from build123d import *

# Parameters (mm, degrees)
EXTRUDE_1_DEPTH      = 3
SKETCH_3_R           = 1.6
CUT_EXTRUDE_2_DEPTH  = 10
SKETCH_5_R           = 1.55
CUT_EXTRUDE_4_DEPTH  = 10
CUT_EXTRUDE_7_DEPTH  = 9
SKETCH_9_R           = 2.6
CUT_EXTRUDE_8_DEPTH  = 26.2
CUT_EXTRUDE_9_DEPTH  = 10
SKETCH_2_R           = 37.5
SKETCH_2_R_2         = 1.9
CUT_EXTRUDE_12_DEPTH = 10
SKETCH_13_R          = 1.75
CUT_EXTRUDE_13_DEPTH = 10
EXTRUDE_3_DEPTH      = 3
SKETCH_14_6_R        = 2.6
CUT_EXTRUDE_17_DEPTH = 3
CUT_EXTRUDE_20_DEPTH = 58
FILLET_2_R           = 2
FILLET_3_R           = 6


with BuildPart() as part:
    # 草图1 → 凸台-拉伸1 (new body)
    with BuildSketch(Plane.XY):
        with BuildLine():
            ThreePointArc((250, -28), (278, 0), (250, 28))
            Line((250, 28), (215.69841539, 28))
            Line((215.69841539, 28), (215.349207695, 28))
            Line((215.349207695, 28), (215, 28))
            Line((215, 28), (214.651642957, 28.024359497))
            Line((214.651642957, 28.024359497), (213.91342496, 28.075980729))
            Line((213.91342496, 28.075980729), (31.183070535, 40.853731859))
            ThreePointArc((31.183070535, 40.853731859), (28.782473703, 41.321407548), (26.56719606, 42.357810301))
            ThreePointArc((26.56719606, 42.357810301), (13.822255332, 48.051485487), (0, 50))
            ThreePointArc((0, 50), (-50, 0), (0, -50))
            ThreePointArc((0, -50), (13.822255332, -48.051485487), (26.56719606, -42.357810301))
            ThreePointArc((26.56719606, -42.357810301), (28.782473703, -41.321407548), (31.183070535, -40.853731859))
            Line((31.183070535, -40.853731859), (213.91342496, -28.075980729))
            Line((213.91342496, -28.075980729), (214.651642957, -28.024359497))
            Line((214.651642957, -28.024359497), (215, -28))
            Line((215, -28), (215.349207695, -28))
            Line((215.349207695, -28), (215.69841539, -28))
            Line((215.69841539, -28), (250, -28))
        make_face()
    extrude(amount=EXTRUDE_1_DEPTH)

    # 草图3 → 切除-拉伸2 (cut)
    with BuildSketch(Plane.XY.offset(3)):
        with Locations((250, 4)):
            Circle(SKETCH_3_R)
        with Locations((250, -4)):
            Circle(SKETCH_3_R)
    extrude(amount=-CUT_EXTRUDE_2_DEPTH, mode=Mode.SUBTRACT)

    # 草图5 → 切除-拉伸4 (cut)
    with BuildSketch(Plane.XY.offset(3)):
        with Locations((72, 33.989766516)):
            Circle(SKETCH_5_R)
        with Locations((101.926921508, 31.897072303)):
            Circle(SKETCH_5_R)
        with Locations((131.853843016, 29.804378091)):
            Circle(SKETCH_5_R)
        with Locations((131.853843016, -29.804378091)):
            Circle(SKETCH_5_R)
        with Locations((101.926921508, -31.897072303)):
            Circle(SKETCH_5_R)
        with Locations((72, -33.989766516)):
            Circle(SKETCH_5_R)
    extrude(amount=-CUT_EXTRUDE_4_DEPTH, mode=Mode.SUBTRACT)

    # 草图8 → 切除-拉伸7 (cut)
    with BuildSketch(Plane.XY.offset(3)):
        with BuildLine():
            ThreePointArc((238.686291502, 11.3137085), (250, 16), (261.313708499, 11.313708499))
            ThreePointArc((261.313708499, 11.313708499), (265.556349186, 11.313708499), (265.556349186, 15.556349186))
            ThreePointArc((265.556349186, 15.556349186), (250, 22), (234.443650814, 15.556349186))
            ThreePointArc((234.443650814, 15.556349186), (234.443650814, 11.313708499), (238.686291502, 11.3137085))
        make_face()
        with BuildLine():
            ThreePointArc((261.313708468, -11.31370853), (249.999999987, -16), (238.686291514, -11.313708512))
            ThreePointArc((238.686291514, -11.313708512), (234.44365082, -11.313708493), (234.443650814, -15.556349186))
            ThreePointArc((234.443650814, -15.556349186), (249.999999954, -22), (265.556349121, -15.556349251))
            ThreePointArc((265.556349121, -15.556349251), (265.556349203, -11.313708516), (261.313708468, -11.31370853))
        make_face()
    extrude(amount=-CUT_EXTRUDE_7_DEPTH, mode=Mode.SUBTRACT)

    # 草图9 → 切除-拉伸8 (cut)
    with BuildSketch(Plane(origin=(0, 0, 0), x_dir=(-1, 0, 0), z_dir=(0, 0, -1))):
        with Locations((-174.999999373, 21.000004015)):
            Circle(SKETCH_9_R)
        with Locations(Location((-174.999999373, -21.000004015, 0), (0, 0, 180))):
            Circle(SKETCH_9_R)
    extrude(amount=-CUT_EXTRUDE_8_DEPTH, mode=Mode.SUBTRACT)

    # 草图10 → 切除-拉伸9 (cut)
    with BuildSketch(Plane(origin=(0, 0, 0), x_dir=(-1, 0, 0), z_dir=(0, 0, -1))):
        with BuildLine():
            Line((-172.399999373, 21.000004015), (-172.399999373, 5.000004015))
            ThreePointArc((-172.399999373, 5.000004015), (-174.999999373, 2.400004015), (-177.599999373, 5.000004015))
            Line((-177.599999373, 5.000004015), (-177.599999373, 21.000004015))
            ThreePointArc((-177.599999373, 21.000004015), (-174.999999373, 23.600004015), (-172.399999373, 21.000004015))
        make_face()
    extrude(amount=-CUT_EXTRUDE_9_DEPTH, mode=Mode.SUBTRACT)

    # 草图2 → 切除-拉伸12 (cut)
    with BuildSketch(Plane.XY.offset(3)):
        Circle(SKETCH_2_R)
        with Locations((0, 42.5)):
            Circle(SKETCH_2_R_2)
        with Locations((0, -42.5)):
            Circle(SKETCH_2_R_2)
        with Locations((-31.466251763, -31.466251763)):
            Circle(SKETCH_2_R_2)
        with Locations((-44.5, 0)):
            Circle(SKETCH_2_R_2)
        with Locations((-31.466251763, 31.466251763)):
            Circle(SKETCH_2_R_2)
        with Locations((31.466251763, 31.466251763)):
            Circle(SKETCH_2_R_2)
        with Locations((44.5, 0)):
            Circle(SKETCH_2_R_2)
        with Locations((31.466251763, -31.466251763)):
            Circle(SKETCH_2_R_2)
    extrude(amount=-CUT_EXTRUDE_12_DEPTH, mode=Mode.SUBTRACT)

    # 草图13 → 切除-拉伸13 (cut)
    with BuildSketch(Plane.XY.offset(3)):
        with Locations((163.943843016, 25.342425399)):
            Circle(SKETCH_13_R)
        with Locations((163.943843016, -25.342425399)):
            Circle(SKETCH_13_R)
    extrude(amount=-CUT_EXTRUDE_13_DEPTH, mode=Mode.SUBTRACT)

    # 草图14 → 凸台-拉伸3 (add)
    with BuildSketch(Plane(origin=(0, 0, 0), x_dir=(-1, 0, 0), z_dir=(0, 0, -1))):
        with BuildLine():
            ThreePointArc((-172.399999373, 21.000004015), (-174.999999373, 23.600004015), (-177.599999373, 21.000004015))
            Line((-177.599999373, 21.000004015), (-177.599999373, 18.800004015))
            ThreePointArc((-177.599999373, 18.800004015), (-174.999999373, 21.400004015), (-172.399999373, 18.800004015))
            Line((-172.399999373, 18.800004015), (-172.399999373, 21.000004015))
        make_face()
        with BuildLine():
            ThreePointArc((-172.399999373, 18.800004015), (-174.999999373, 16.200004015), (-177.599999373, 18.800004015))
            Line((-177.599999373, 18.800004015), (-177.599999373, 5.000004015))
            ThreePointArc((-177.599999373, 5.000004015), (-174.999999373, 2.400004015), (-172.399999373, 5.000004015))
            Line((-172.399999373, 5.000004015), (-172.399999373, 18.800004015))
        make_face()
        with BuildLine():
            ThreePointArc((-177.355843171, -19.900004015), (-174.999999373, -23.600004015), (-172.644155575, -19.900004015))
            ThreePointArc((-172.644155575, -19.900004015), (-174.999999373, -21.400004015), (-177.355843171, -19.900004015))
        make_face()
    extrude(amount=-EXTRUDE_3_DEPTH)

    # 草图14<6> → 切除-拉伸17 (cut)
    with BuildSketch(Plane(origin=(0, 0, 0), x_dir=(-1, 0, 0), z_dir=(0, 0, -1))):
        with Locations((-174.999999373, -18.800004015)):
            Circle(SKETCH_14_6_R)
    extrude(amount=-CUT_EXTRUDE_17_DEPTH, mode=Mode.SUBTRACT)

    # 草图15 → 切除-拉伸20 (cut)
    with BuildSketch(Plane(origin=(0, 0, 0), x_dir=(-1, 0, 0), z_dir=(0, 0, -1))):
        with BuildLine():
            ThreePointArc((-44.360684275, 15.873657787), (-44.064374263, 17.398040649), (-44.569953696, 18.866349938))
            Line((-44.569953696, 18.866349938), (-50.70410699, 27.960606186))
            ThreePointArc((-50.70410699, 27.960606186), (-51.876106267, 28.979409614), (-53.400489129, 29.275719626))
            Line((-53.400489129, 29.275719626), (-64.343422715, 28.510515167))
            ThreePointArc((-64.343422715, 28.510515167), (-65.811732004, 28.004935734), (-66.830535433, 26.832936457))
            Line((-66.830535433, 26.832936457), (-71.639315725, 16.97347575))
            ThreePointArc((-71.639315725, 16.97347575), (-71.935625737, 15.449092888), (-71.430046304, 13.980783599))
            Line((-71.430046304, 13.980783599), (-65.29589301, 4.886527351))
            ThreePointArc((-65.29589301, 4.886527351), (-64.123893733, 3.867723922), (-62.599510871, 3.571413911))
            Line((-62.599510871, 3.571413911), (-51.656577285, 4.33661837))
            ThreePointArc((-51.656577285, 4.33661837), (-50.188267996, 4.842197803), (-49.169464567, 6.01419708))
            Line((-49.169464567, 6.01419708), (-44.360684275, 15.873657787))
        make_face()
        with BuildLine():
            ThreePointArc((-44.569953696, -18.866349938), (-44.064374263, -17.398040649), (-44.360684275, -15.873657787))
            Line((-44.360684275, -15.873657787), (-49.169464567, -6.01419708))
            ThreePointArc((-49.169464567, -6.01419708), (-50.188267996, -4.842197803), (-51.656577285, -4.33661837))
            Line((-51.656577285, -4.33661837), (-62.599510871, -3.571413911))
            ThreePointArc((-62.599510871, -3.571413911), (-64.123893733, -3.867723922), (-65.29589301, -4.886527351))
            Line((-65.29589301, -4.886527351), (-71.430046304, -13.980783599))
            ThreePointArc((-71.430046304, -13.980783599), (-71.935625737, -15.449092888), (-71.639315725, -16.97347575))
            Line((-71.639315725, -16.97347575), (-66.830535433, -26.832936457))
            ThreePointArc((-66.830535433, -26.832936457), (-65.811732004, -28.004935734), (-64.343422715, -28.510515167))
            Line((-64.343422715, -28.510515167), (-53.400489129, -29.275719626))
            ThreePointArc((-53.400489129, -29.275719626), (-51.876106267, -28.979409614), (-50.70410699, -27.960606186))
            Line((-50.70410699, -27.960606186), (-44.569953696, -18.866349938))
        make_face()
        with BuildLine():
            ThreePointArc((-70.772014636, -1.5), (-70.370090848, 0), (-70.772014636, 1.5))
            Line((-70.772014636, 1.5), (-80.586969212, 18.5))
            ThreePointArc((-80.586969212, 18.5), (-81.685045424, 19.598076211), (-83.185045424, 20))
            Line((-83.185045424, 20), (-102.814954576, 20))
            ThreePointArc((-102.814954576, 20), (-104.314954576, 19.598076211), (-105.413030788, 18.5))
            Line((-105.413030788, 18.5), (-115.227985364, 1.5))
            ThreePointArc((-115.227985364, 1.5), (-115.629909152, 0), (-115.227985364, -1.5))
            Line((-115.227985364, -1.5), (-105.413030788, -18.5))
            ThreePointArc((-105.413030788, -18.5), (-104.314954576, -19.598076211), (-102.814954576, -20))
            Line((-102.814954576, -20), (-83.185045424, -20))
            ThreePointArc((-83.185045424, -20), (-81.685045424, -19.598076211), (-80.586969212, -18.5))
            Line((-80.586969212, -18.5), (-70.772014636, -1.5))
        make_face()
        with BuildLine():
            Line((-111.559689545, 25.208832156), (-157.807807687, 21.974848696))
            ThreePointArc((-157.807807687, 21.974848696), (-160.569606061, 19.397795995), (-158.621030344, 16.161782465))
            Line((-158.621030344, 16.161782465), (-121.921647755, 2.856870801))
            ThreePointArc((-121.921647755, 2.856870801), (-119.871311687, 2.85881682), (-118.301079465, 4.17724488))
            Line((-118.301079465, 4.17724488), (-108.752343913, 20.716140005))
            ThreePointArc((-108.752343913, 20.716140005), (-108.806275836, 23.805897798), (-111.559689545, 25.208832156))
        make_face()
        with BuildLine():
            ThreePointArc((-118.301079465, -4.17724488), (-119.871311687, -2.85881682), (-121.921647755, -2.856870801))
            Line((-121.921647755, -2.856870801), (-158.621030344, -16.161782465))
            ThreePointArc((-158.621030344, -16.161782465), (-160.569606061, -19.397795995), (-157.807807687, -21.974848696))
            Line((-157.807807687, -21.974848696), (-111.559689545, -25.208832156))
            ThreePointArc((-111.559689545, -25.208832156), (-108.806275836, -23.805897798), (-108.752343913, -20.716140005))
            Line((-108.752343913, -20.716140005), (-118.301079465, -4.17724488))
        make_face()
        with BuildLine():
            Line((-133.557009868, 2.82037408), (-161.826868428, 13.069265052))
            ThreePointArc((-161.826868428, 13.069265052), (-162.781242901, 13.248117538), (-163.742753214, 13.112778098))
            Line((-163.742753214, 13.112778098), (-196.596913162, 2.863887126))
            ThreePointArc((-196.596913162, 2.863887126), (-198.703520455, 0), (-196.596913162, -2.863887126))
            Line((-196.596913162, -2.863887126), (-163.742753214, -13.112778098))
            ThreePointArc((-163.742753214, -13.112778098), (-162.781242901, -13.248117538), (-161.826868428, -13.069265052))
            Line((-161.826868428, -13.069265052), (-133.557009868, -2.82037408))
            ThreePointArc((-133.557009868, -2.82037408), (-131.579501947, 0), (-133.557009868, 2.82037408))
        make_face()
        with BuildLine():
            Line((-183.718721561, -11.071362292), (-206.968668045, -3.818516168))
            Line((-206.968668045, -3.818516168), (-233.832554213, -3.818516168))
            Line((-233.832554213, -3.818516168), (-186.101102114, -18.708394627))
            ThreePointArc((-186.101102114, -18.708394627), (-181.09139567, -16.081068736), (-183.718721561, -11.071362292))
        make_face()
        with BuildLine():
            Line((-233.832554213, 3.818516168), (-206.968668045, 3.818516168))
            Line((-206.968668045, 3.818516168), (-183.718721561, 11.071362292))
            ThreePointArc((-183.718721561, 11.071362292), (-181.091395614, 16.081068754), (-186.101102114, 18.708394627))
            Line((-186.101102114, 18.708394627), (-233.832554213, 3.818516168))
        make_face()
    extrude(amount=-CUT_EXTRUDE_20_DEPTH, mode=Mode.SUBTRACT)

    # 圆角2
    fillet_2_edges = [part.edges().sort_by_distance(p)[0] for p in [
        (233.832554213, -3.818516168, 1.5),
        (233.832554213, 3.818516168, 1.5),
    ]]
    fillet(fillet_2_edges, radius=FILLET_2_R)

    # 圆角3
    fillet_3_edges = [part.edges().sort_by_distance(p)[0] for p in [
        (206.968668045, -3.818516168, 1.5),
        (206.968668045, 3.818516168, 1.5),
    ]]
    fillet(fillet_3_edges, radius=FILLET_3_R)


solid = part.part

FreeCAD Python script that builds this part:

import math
import FreeCAD as App
import Part
import Sketcher

V = App.Vector
Q = App.Units.Quantity


def edges_at(feature, points):
    """Names of the edges that pass closest to the given points."""
    edges = feature.Shape.Edges
    near = lambda p: min(range(len(edges)), key=lambda i: edges[i].distToShape(Part.Vertex(*p))[0])
    return sorted({f"Edge{near(p) + 1}" for p in points})

doc = App.newDocument("Part")
body = doc.addObject("PartDesign::Body", "Body")

sketch1 = body.newObject("Sketcher::SketchObject", "Sketch")
sketch1.AttachmentSupport = (doc.getObject("XY_Plane"), [""])
sketch1.MapMode = "FlatFace"
sketch1.addGeometry(Part.ArcOfCircle(Part.Circle(V(250, 0, 0), V(0, 0, 1), 28), math.radians(-90), math.radians(90)), False)
sketch1.addGeometry(Part.LineSegment(V(250, 28, 0), V(215, 28, 0)), False)
sketch1.addGeometry(Part.LineSegment(V(215, 28, 0), V(214.65, 28.02, 0)), False)
sketch1.addGeometry(Part.LineSegment(V(214.65, 28.02, 0), V(213.91, 28.08, 0)), False)
sketch1.addGeometry(Part.LineSegment(V(213.91, 28.08, 0), V(31.18, 40.85, 0)), False)
sketch1.addGeometry(Part.ArcOfCircle(Part.Circle(V(31.88, 50.83, 0), V(0, 0, 1), 10), math.radians(-122), math.radians(-94)), False)
sketch1.addGeometry(Part.ArcOfCircle(Part.Circle(V(0, 0, 0), V(0, 0, 1), 50), math.radians(58), math.radians(90)), False)
sketch1.addGeometry(Part.ArcOfCircle(Part.Circle(V(0, 0, 0), V(0, 0, 1), 50), math.radians(90), math.radians(270)), False)
sketch1.addGeometry(Part.ArcOfCircle(Part.Circle(V(0, 0, 0), V(0, 0, 1), 50), math.radians(-90), math.radians(-58)), False)
sketch1.addGeometry(Part.ArcOfCircle(Part.Circle(V(31.88, -50.83, 0), V(0, 0, 1), 10), math.radians(94), math.radians(122)), False)
sketch1.addGeometry(Part.LineSegment(V(31.18, -40.85, 0), V(213.91, -28.08, 0)), False)
sketch1.addGeometry(Part.LineSegment(V(213.91, -28.08, 0), V(214.65, -28.02, 0)), False)
sketch1.addGeometry(Part.LineSegment(V(214.65, -28.02, 0), V(215, -28, 0)), False)
sketch1.addGeometry(Part.LineSegment(V(215, -28, 0), V(250, -28, 0)), False)
sketch1.addConstraint(Sketcher.Constraint("Tangent", 0, 2, 1, 1))
sketch1.addConstraint(Sketcher.Constraint("Coincident", 1, 2, 2, 1))
sketch1.addConstraint(Sketcher.Constraint("Coincident", 2, 2, 3, 1))
sketch1.addConstraint(Sketcher.Constraint("Coincident", 3, 2, 4, 1))
sketch1.addConstraint(Sketcher.Constraint("Tangent", 4, 2, 5, 2))
sketch1.addConstraint(Sketcher.Constraint("Tangent", 5, 1, 6, 1))
sketch1.addConstraint(Sketcher.Constraint("Tangent", 6, 2, 7, 1))
sketch1.addConstraint(Sketcher.Constraint("Tangent", 7, 2, 8, 1))
sketch1.addConstraint(Sketcher.Constraint("Tangent", 8, 2, 9, 2))
sketch1.addConstraint(Sketcher.Constraint("Tangent", 9, 1, 10, 1))
sketch1.addConstraint(Sketcher.Constraint("Coincident", 10, 2, 11, 1))
sketch1.addConstraint(Sketcher.Constraint("Coincident", 11, 2, 12, 1))
sketch1.addConstraint(Sketcher.Constraint("Coincident", 12, 2, 13, 1))
sketch1.addConstraint(Sketcher.Constraint("Tangent", 13, 2, 0, 1))
sketch1.addConstraint(Sketcher.Constraint("Horizontal", 1))
sketch1.addConstraint(Sketcher.Constraint("Horizontal", 13))
sketch1.addConstraint(Sketcher.Constraint("Coincident", 6, 3, -1, 1))
sketch1.addConstraint(Sketcher.Constraint("Equal", 6, 7))
sketch1.addConstraint(Sketcher.Constraint("Equal", 7, 8))
sketch1.addConstraint(Sketcher.Constraint("Equal", 5, 9))
sketch1.addConstraint(Sketcher.Constraint("Symmetric", 4, 2, 9, 1, -1))
sketch1.addConstraint(Sketcher.Constraint("Symmetric", 2, 2, 11, 2, -1))
sketch1.addConstraint(Sketcher.Constraint("Symmetric", 1, 2, 12, 2, -1))
sketch1.addConstraint(Sketcher.Constraint("PointOnObject", 6, 2, -2))
sketch1.addConstraint(Sketcher.Constraint("PointOnObject", 7, 2, -2))
sketch1.addConstraint(Sketcher.Constraint("Parallel", 2, 3))
sketch1.addConstraint(Sketcher.Constraint("Parallel", 3, 4))
sketch1.addConstraint(Sketcher.Constraint("Vertical", 3, 2, 10, 2))
sketch1.addConstraint(Sketcher.Constraint("Radius", 0, 28.0))
sketch1.addConstraint(Sketcher.Constraint("Radius", 5, 10.0))
sketch1.addConstraint(Sketcher.Constraint("Radius", 6, 50.0))
sketch1.addConstraint(Sketcher.Constraint("DistanceX", 1, 2, 1, 1, 35.0))
sketch1.addConstraint(Sketcher.Constraint("Angle", 4, Q("176 deg")))
sketch1.addConstraint(Sketcher.Constraint("DistanceX", -1, 1, 0, 3, 250.0))
sketch1.addConstraint(Sketcher.Constraint("Distance", 3, 0.740021))
sketch1.addConstraint(Sketcher.Constraint("DistanceY", -1, 1, 2, 2, 28.024359))
pad1 = body.newObject("PartDesign::Pad", "Pad")
pad1.Profile = sketch1
pad1.Length = 3

sketch2 = body.newObject("Sketcher::SketchObject", "Sketch001")
sketch2.AttachmentSupport = (doc.getObject("XY_Plane"), [""])
sketch2.MapMode = "FlatFace"
sketch2.AttachmentOffset = App.Placement(V(0, 0, 3), App.Rotation())
sketch2.addGeometry(Part.Circle(V(250, 4, 0), V(0, 0, 1), 1.6), False)
sketch2.addGeometry(Part.Circle(V(250, -4, 0), V(0, 0, 1), 1.6), False)
sketch2.addConstraint(Sketcher.Constraint("Equal", 0, 1))
sketch2.addConstraint(Sketcher.Constraint("Symmetric", 0, 3, 1, 3, -1))
sketch2.addConstraint(Sketcher.Constraint("Diameter", 0, 3.2))
sketch2.addConstraint(Sketcher.Constraint("DistanceX", -1, 1, 0, 3, 250.0))
sketch2.addConstraint(Sketcher.Constraint("DistanceY", -1, 1, 0, 3, 4.0))
pocket1 = body.newObject("PartDesign::Pocket", "Pocket")
pocket1.Profile = sketch2
pocket1.Length = 10

sketch3 = body.newObject("Sketcher::SketchObject", "Sketch002")
sketch3.AttachmentSupport = (doc.getObject("XY_Plane"), [""])
sketch3.MapMode = "FlatFace"
sketch3.AttachmentOffset = App.Placement(V(0, 0, 3), App.Rotation())
sketch3.addGeometry(Part.Circle(V(72, 34, 0), V(0, 0, 1), 1.6), False)
sketch3.addGeometry(Part.Circle(V(101.9, 31.9, 0), V(0, 0, 1), 1.6), False)
sketch3.addGeometry(Part.Circle(V(131.9, 29.8, 0), V(0, 0, 1), 1.6), False)
sketch3.addGeometry(Part.Circle(V(131.9, -29.8, 0), V(0, 0, 1), 1.6), False)
sketch3.addGeometry(Part.Circle(V(101.9, -31.9, 0), V(0, 0, 1), 1.6), False)
sketch3.addGeometry(Part.Circle(V(72, -34, 0), V(0, 0, 1), 1.6), False)
sketch3.addConstraint(Sketcher.Constraint("Equal", 0, 1))
sketch3.addConstraint(Sketcher.Constraint("Equal", 1, 2))
sketch3.addConstraint(Sketcher.Constraint("Equal", 2, 3))
sketch3.addConstraint(Sketcher.Constraint("Equal", 3, 4))
sketch3.addConstraint(Sketcher.Constraint("Equal", 4, 5))
sketch3.addConstraint(Sketcher.Constraint("Symmetric", 2, 3, 3, 3, -1))
sketch3.addConstraint(Sketcher.Constraint("Symmetric", 1, 3, 4, 3, -1))
sketch3.addConstraint(Sketcher.Constraint("Symmetric", 0, 3, 5, 3, -1))
sketch3.addConstraint(Sketcher.Constraint("Diameter", 0, 3.1))
sketch3.addConstraint(Sketcher.Constraint("DistanceX", -1, 1, 0, 3, 72.0))
sketch3.addConstraint(Sketcher.Constraint("DistanceX", -1, 1, 1, 3, 101.926922))
sketch3.addConstraint(Sketcher.Constraint("DistanceY", -1, 1, 2, 3, 29.804378))
sketch3.addConstraint(Sketcher.Constraint("DistanceX", 1, 3, 2, 3, 29.926922))
sketch3.addConstraint(Sketcher.Constraint("DistanceY", 2, 3, 0, 3, 4.185388))
sketch3.addConstraint(Sketcher.Constraint("DistanceY", 3, 3, 1, 3, 61.70145))
pocket2 = body.newObject("PartDesign::Pocket", "Pocket001")
pocket2.Profile = sketch3
pocket2.Length = 10

sketch4 = body.newObject("Sketcher::SketchObject", "Sketch003")
sketch4.AttachmentSupport = (doc.getObject("XY_Plane"), [""])
sketch4.MapMode = "FlatFace"
sketch4.AttachmentOffset = App.Placement(V(0, 0, 3), App.Rotation())
sketch4.addGeometry(Part.ArcOfCircle(Part.Circle(V(250, 0, 0), V(0, 0, 1), 16), math.radians(45), math.radians(135)), False)
sketch4.addGeometry(Part.ArcOfCircle(Part.Circle(V(263.4, 13.4, 0), V(0, 0, 1), 3), math.radians(-135), math.radians(45)), False)
sketch4.addGeometry(Part.ArcOfCircle(Part.Circle(V(250, 0, 0), V(0, 0, 1), 22), math.radians(45), math.radians(135)), False)
sketch4.addGeometry(Part.ArcOfCircle(Part.Circle(V(236.6, 13.4, 0), V(0, 0, 1), 3), math.radians(135), math.radians(315)), False)
sketch4.addGeometry(Part.ArcOfCircle(Part.Circle(V(250, 0, 0), V(0, 0, 1), 16), math.radians(-135), math.radians(-45)), False)
sketch4.addGeometry(Part.ArcOfCircle(Part.Circle(V(236.6, -13.4, 0), V(0, 0, 1), 3), math.radians(45), math.radians(225)), False)
sketch4.addGeometry(Part.ArcOfCircle(Part.Circle(V(250, 0, 0), V(0, 0, 1), 22), math.radians(-135), math.radians(-45)), False)
sketch4.addGeometry(Part.ArcOfCircle(Part.Circle(V(263.4, -13.4, 0), V(0, 0, 1), 3), math.radians(-45), math.radians(135)), False)
sketch4.addConstraint(Sketcher.Constraint("Tangent", 0, 1, 1, 1))
sketch4.addConstraint(Sketcher.Constraint("Tangent", 1, 2, 2, 1))
sketch4.addConstraint(Sketcher.Constraint("Tangent", 2, 2, 3, 1))
sketch4.addConstraint(Sketcher.Constraint("Tangent", 3, 2, 0, 2))
sketch4.addConstraint(Sketcher.Constraint("Tangent", 4, 1, 5, 1))
sketch4.addConstraint(Sketcher.Constraint("Tangent", 5, 2, 6, 1))
sketch4.addConstraint(Sketcher.Constraint("Tangent", 6, 2, 7, 1))
sketch4.addConstraint(Sketcher.Constraint("Tangent", 7, 2, 4, 2))
sketch4.addConstraint(Sketcher.Constraint("Coincident", 2, 3, 0, 3))
sketch4.addConstraint(Sketcher.Constraint("Coincident", 4, 3, 0, 3))
sketch4.addConstraint(Sketcher.Constraint("Coincident", 6, 3, 0, 3))
sketch4.addConstraint(Sketcher.Constraint("Equal", 0, 4))
sketch4.addConstraint(Sketcher.Constraint("Equal", 3, 5))
sketch4.addConstraint(Sketcher.Constraint("Symmetric", 3, 3, 5, 3, -1))
sketch4.addConstraint(Sketcher.Constraint("Horizontal", 1, 3, 3, 3))
sketch4.addConstraint(Sketcher.Constraint("Horizontal", 5, 3, 7, 3))
sketch4.addConstraint(Sketcher.Constraint("Radius", 0, 16.0))
sketch4.addConstraint(Sketcher.Constraint("Radius", 1, 3.0))
sketch4.addConstraint(Sketcher.Constraint("DistanceX", -1, 1, 0, 3, 250.0))
sketch4.addConstraint(Sketcher.Constraint("DistanceX", -1, 1, 1, 3, 263.435029))
pocket3 = body.newObject("PartDesign::Pocket", "Pocket002")
pocket3.Profile = sketch4
pocket3.Length = 9

sketch5 = body.newObject("Sketcher::SketchObject", "Sketch004")
sketch5.AttachmentSupport = (doc.getObject("XY_Plane"), [""])
sketch5.MapMode = "FlatFace"
sketch5.addGeometry(Part.Circle(V(175, 21, 0), V(0, 0, 1), 2.6), False)
sketch5.addGeometry(Part.Circle(V(175, -21, 0), V(0, 0, 1), 2.6), False)
sketch5.addConstraint(Sketcher.Constraint("Equal", 0, 1))
sketch5.addConstraint(Sketcher.Constraint("Symmetric", 0, 3, 1, 3, -1))
sketch5.addConstraint(Sketcher.Constraint("Diameter", 0, 5.2))
sketch5.addConstraint(Sketcher.Constraint("DistanceX", -1, 1, 0, 3, 174.999999))
sketch5.addConstraint(Sketcher.Constraint("DistanceY", 1, 3, 0, 3, 42.000008))
pocket4 = body.newObject("PartDesign::Pocket", "Pocket003")
pocket4.Profile = sketch5
pocket4.Length = 26.2
pocket4.Reversed = True

sketch6 = body.newObject("Sketcher::SketchObject", "Sketch005")
sketch6.AttachmentSupport = (doc.getObject("XY_Plane"), [""])
sketch6.MapMode = "FlatFace"
sketch6.addGeometry(Part.LineSegment(V(172.4, 5, 0), V(172.4, 21, 0)), False)
sketch6.addGeometry(Part.ArcOfCircle(Part.Circle(V(175, 21, 0), V(0, 0, 1), 2.6), math.radians(0), math.radians(180)), False)
sketch6.addGeometry(Part.LineSegment(V(177.6, 21, 0), V(177.6, 5, 0)), False)
sketch6.addGeometry(Part.ArcOfCircle(Part.Circle(V(175, 5, 0), V(0, 0, 1), 2.6), math.radians(180), math.radians(360)), False)
sketch6.addConstraint(Sketcher.Constraint("Tangent", 0, 2, 1, 2))
sketch6.addConstraint(Sketcher.Constraint("Tangent", 1, 1, 2, 1))
sketch6.addConstraint(Sketcher.Constraint("Tangent", 2, 2, 3, 2))
sketch6.addConstraint(Sketcher.Constraint("Tangent", 3, 1, 0, 1))
sketch6.addConstraint(Sketcher.Constraint("Vertical", 0))
sketch6.addConstraint(Sketcher.Constraint("Vertical", 2))
sketch6.addConstraint(Sketcher.Constraint("Radius", 1, 2.6))
sketch6.addConstraint(Sketcher.Constraint("DistanceY", 0, 1, 0, 2, 16.0))
sketch6.addConstraint(Sketcher.Constraint("DistanceX", -1, 1, 1, 3, 174.999999))
sketch6.addConstraint(Sketcher.Constraint("DistanceY", -1, 1, 1, 3, 21.000004))
pocket5 = body.newObject("PartDesign::Pocket", "Pocket004")
pocket5.Profile = sketch6
pocket5.Length = 10
pocket5.Reversed = True

sketch7 = body.newObject("Sketcher::SketchObject", "Sketch006")
sketch7.AttachmentSupport = (doc.getObject("XY_Plane"), [""])
sketch7.MapMode = "FlatFace"
sketch7.AttachmentOffset = App.Placement(V(0, 0, 3), App.Rotation())
sketch7.addGeometry(Part.Circle(V(0, 0, 0), V(0, 0, 1), 37.5), False)
sketch7.addGeometry(Part.Circle(V(0, 42.5, 0), V(0, 0, 1), 1.9), False)
sketch7.addGeometry(Part.Circle(V(0, -42.5, 0), V(0, 0, 1), 1.9), False)
sketch7.addGeometry(Part.Circle(V(-31.5, -31.5, 0), V(0, 0, 1), 1.9), False)
sketch7.addGeometry(Part.Circle(V(-44.5, 0, 0), V(0, 0, 1), 1.9), False)
sketch7.addGeometry(Part.Circle(V(-31.5, 31.5, 0), V(0, 0, 1), 1.9), False)
sketch7.addGeometry(Part.Circle(V(31.5, 31.5, 0), V(0, 0, 1), 1.9), False)
sketch7.addGeometry(Part.Circle(V(44.5, 0, 0), V(0, 0, 1), 1.9), False)
sketch7.addGeometry(Part.Circle(V(31.5, -31.5, 0), V(0, 0, 1), 1.9), False)
sketch7.addConstraint(Sketcher.Constraint("Coincident", 0, 3, -1, 1))
sketch7.addConstraint(Sketcher.Constraint("Equal", 1, 2))
sketch7.addConstraint(Sketcher.Constraint("Equal", 2, 3))
sketch7.addConstraint(Sketcher.Constraint("Equal", 3, 4))
sketch7.addConstraint(Sketcher.Constraint("Equal", 4, 5))
sketch7.addConstraint(Sketcher.Constraint("Equal", 5, 6))
sketch7.addConstraint(Sketcher.Constraint("Equal", 6, 7))
sketch7.addConstraint(Sketcher.Constraint("Equal", 7, 8))
sketch7.addConstraint(Sketcher.Constraint("Symmetric", 1, 3, 2, 3, -1, 1))
sketch7.addConstraint(Sketcher.Constraint("Symmetric", 3, 3, 6, 3, -1, 1))
sketch7.addConstraint(Sketcher.Constraint("Symmetric", 4, 3, 7, 3, -1, 1))
sketch7.addConstraint(Sketcher.Constraint("Symmetric", 5, 3, 8, 3, -1, 1))
sketch7.addConstraint(Sketcher.Constraint("Symmetric", 5, 3, 6, 3, -2))
sketch7.addConstraint(Sketcher.Constraint("PointOnObject", 1, 3, -2))
sketch7.addConstraint(Sketcher.Constraint("PointOnObject", 4, 3, -1))
sketch7.addConstraint(Sketcher.Constraint("Diameter", 0, 75.0))
sketch7.addConstraint(Sketcher.Constraint("Diameter", 1, 3.8))
sketch7.addConstraint(Sketcher.Constraint("DistanceY", 2, 3, 1, 3, 85.0))
sketch7.addConstraint(Sketcher.Constraint("DistanceX", 4, 3, -1, 1, 44.5))
sketch7.addConstraint(Sketcher.Constraint("DistanceX", 3, 3, -1, 1, 31.466252))
sketch7.addConstraint(Sketcher.Constraint("DistanceY", 3, 3, -1, 1, 31.466252))
pocket6 = body.newObject("PartDesign::Pocket", "Pocket005")
pocket6.Profile = sketch7
pocket6.Length = 10

sketch8 = body.newObject("Sketcher::SketchObject", "Sketch007")
sketch8.AttachmentSupport = (doc.getObject("XY_Plane"), [""])
sketch8.MapMode = "FlatFace"
sketch8.AttachmentOffset = App.Placement(V(0, 0, 3), App.Rotation())
sketch8.addGeometry(Part.Circle(V(163.9, 25.3, 0), V(0, 0, 1), 1.8), False)
sketch8.addGeometry(Part.Circle(V(163.9, -25.3, 0), V(0, 0, 1), 1.8), False)
sketch8.addConstraint(Sketcher.Constraint("Equal", 0, 1))
sketch8.addConstraint(Sketcher.Constraint("Symmetric", 0, 3, 1, 3, -1))
sketch8.addConstraint(Sketcher.Constraint("Diameter", 0, 3.5))
sketch8.addConstraint(Sketcher.Constraint("DistanceY", 1, 3, 0, 3, 50.684851))
sketch8.addConstraint(Sketcher.Constraint("DistanceX", -1, 1, 0, 3, 163.943843))
pocket7 = body.newObject("PartDesign::Pocket", "Pocket006")
pocket7.Profile = sketch8
pocket7.Length = 10

sketch9 = body.newObject("Sketcher::SketchObject", "Sketch008")
sketch9.AttachmentSupport = (doc.getObject("XY_Plane"), [""])
sketch9.MapMode = "FlatFace"
sketch9.addGeometry(Part.ArcOfCircle(Part.Circle(V(175, 21, 0), V(0, 0, 1), 2.6), math.radians(0), math.radians(180)), False)
sketch9.addGeometry(Part.LineSegment(V(177.6, 21, 0), V(177.6, 18.8, 0)), False)
sketch9.addGeometry(Part.ArcOfCircle(Part.Circle(V(175, 18.8, 0), V(0, 0, 1), 2.6), math.radians(0), math.radians(180)), False)
sketch9.addGeometry(Part.LineSegment(V(172.4, 18.8, 0), V(172.4, 21, 0)), False)
sketch9.addGeometry(Part.ArcOfCircle(Part.Circle(V(175, 18.8, 0), V(0, 0, 1), 2.6), math.radians(180), math.radians(360)), False)
sketch9.addGeometry(Part.LineSegment(V(177.6, 18.8, 0), V(177.6, 5, 0)), False)
sketch9.addGeometry(Part.ArcOfCircle(Part.Circle(V(175, 5, 0), V(0, 0, 1), 2.6), math.radians(180), math.radians(360)), False)
sketch9.addGeometry(Part.LineSegment(V(172.4, 5, 0), V(172.4, 18.8, 0)), False)
sketch9.addGeometry(Part.ArcOfCircle(Part.Circle(V(175, -21, 0), V(0, 0, 1), 2.6), math.radians(155), math.radians(385)), False)
sketch9.addGeometry(Part.ArcOfCircle(Part.Circle(V(175, -18.8, 0), V(0, 0, 1), 2.6), math.radians(-155), math.radians(-25)), False)
sketch9.addConstraint(Sketcher.Constraint("Tangent", 0, 1, 1, 1))
sketch9.addConstraint(Sketcher.Constraint("Tangent", 1, 2, 2, 1))
sketch9.addConstraint(Sketcher.Constraint("Tangent", 2, 2, 3, 1))
sketch9.addConstraint(Sketcher.Constraint("Tangent", 3, 2, 0, 2))
sketch9.addConstraint(Sketcher.Constraint("Tangent", 4, 2, 5, 1))
sketch9.addConstraint(Sketcher.Constraint("Tangent", 5, 2, 6, 2))
sketch9.addConstraint(Sketcher.Constraint("Tangent", 6, 1, 7, 1))
sketch9.addConstraint(Sketcher.Constraint("Tangent", 7, 2, 4, 1))
sketch9.addConstraint(Sketcher.Constraint("Coincident", 8, 1, 9, 1))
sketch9.addConstraint(Sketcher.Constraint("Coincident", 9, 2, 8, 2))
sketch9.addConstraint(Sketcher.Constraint("Vertical", 1))
sketch9.addConstraint(Sketcher.Constraint("Vertical", 3))
sketch9.addConstraint(Sketcher.Constraint("Vertical", 5))
sketch9.addConstraint(Sketcher.Constraint("Vertical", 7))
sketch9.addConstraint(Sketcher.Constraint("Coincident", 4, 3, 2, 3))
sketch9.addConstraint(Sketcher.Constraint("Equal", 2, 4))
sketch9.addConstraint(Sketcher.Constraint("Equal", 6, 8))
sketch9.addConstraint(Sketcher.Constraint("Equal", 8, 9))
sketch9.addConstraint(Sketcher.Constraint("Symmetric", 0, 3, 8, 3, -1))
sketch9.addConstraint(Sketcher.Constraint("Symmetric", 2, 3, 9, 3, -1))
sketch9.addConstraint(Sketcher.Constraint("Radius", 0, 2.6))
sketch9.addConstraint(Sketcher.Constraint("DistanceY", 1, 2, 1, 1, 2.2))
sketch9.addConstraint(Sketcher.Constraint("DistanceY", 5, 2, 5, 1, 13.8))
sketch9.addConstraint(Sketcher.Constraint("DistanceX", -1, 1, 0, 3, 174.999999))
sketch9.addConstraint(Sketcher.Constraint("DistanceY", 8, 3, 6, 3, 26.000008))
pad2 = body.newObject("PartDesign::Pad", "Pad001")
pad2.Profile = sketch9
pad2.Length = 3

sketch10 = body.newObject("Sketcher::SketchObject", "Sketch009")
sketch10.AttachmentSupport = (doc.getObject("XY_Plane"), [""])
sketch10.MapMode = "FlatFace"
sketch10.addGeometry(Part.Circle(V(175, -18.8, 0), V(0, 0, 1), 2.6), False)
sketch10.addConstraint(Sketcher.Constraint("Diameter", 0, 5.2))
sketch10.addConstraint(Sketcher.Constraint("DistanceX", -1, 1, 0, 3, 174.999999))
sketch10.addConstraint(Sketcher.Constraint("DistanceY", 0, 3, -1, 1, 18.800004))
pocket8 = body.newObject("PartDesign::Pocket", "Pocket007")
pocket8.Profile = sketch10
pocket8.Length = 3
pocket8.Reversed = True

sketch11 = body.newObject("Sketcher::SketchObject", "Sketch010")
sketch11.AttachmentSupport = (doc.getObject("XY_Plane"), [""])
sketch11.MapMode = "FlatFace"
sketch11.addGeometry(Part.ArcOfCircle(Part.Circle(V(47.1, 17.2, 0), V(0, 0, 1), 3), math.radians(146), math.radians(206)), False)
sketch11.addGeometry(Part.LineSegment(V(44.6, 18.9, 0), V(50.7, 28, 0)), False)
sketch11.addGeometry(Part.ArcOfCircle(Part.Circle(V(53.2, 26.3, 0), V(0, 0, 1), 3), math.radians(86), math.radians(146)), False)
sketch11.addGeometry(Part.LineSegment(V(53.4, 29.3, 0), V(64.3, 28.5, 0)), False)
sketch11.addGeometry(Part.ArcOfCircle(Part.Circle(V(64.1, 25.5, 0), V(0, 0, 1), 3), math.radians(26), math.radians(86)), False)
sketch11.addGeometry(Part.LineSegment(V(66.8, 26.8, 0), V(71.6, 17, 0)), False)
sketch11.addGeometry(Part.ArcOfCircle(Part.Circle(V(68.9, 15.7, 0), V(0, 0, 1), 3), math.radians(-34), math.radians(26)), False)
sketch11.addGeometry(Part.LineSegment(V(71.4, 14, 0), V(65.3, 4.9, 0)), False)
sketch11.addGeometry(Part.ArcOfCircle(Part.Circle(V(62.8, 6.6, 0), V(0, 0, 1), 3), math.radians(-94), math.radians(-34)), False)
sketch11.addGeometry(Part.LineSegment(V(62.6, 3.6, 0), V(51.7, 4.3, 0)), False)
sketch11.addGeometry(Part.ArcOfCircle(Part.Circle(V(51.9, 7.3, 0), V(0, 0, 1), 3), math.radians(-154), math.radians(-94)), False)
sketch11.addGeometry(Part.LineSegment(V(49.2, 6, 0), V(44.4, 15.9, 0)), False)
sketch11.addGeometry(Part.ArcOfCircle(Part.Circle(V(47.1, -17.2, 0), V(0, 0, 1), 3), math.radians(154), math.radians(214)), False)
sketch11.addGeometry(Part.LineSegment(V(44.4, -15.9, 0), V(49.2, -6, 0)), False)
sketch11.addGeometry(Part.ArcOfCircle(Part.Circle(V(51.9, -7.3, 0), V(0, 0, 1), 3), math.radians(94), math.radians(154)), False)
sketch11.addGeometry(Part.LineSegment(V(51.7, -4.3, 0), V(62.6, -3.6, 0)), False)
sketch11.addGeometry(Part.ArcOfCircle(Part.Circle(V(62.8, -6.6, 0), V(0, 0, 1), 3), math.radians(34), math.radians(94)), False)
sketch11.addGeometry(Part.LineSegment(V(65.3, -4.9, 0), V(71.4, -14, 0)), False)
sketch11.addGeometry(Part.ArcOfCircle(Part.Circle(V(68.9, -15.7, 0), V(0, 0, 1), 3), math.radians(-26), math.radians(34)), False)
sketch11.addGeometry(Part.LineSegment(V(71.6, -17, 0), V(66.8, -26.8, 0)), False)
sketch11.addGeometry(Part.ArcOfCircle(Part.Circle(V(64.1, -25.5, 0), V(0, 0, 1), 3), math.radians(-86), math.radians(-26)), False)
sketch11.addGeometry(Part.LineSegment(V(64.3, -28.5, 0), V(53.4, -29.3, 0)), False)
sketch11.addGeometry(Part.ArcOfCircle(Part.Circle(V(53.2, -26.3, 0), V(0, 0, 1), 3), math.radians(-146), math.radians(-86)), False)
sketch11.addGeometry(Part.LineSegment(V(50.7, -28, 0), V(44.6, -18.9, 0)), False)
sketch11.addGeometry(Part.ArcOfCircle(Part.Circle(V(73.4, 0, 0), V(0, 0, 1), 3), math.radians(150), math.radians(210)), False)
sketch11.addGeometry(Part.LineSegment(V(70.8, 1.5, 0), V(80.6, 18.5, 0)), False)
sketch11.addGeometry(Part.ArcOfCircle(Part.Circle(V(83.2, 17, 0), V(0, 0, 1), 3), math.radians(90), math.radians(150)), False)
sketch11.addGeometry(Part.LineSegment(V(83.2, 20, 0), V(102.8, 20, 0)), False)
sketch11.addGeometry(Part.ArcOfCircle(Part.Circle(V(102.8, 17, 0), V(0, 0, 1), 3), math.radians(30), math.radians(90)), False)
sketch11.addGeometry(Part.LineSegment(V(105.4, 18.5, 0), V(115.2, 1.5, 0)), False)
sketch11.addGeometry(Part.ArcOfCircle(Part.Circle(V(112.6, 0, 0), V(0, 0, 1), 3), math.radians(-30), math.radians(30)), False)
sketch11.addGeometry(Part.LineSegment(V(115.2, -1.5, 0), V(105.4, -18.5, 0)), False)
sketch11.addGeometry(Part.ArcOfCircle(Part.Circle(V(102.8, -17, 0), V(0, 0, 1), 3), math.radians(-90), math.radians(-30)), False)
sketch11.addGeometry(Part.LineSegment(V(102.8, -20, 0), V(83.2, -20, 0)), False)
sketch11.addGeometry(Part.ArcOfCircle(Part.Circle(V(83.2, -17, 0), V(0, 0, 1), 3), math.radians(-150), math.radians(-90)), False)
sketch11.addGeometry(Part.LineSegment(V(80.6, -18.5, 0), V(70.8, -1.5, 0)), False)
sketch11.addGeometry(Part.LineSegment(V(111.6, 25.2, 0), V(157.8, 22, 0)), False)
sketch11.addGeometry(Part.ArcOfCircle(Part.Circle(V(157.6, 19, 0), V(0, 0, 1), 3), math.radians(-70), math.radians(86)), False)
sketch11.addGeometry(Part.LineSegment(V(158.6, 16.2, 0), V(121.9, 2.9, 0)), False)
sketch11.addGeometry(Part.ArcOfCircle(Part.Circle(V(120.9, 5.7, 0), V(0, 0, 1), 3), math.radians(-150), math.radians(-70)), False)
sketch11.addGeometry(Part.LineSegment(V(118.3, 4.2, 0), V(108.8, 20.7, 0)), False)
sketch11.addGeometry(Part.ArcOfCircle(Part.Circle(V(111.4, 22.2, 0), V(0, 0, 1), 3), math.radians(86), math.radians(210)), False)
sketch11.addGeometry(Part.ArcOfCircle(Part.Circle(V(120.9, -5.7, 0), V(0, 0, 1), 3), math.radians(70), math.radians(150)), False)
sketch11.addGeometry(Part.LineSegment(V(121.9, -2.9, 0), V(158.6, -16.2, 0)), False)
sketch11.addGeometry(Part.ArcOfCircle(Part.Circle(V(157.6, -19, 0), V(0, 0, 1), 3), math.radians(-86), math.radians(70)), False)
sketch11.addGeometry(Part.LineSegment(V(157.8, -22, 0), V(111.6, -25.2, 0)), False)
sketch11.addGeometry(Part.ArcOfCircle(Part.Circle(V(111.4, -22.2, 0), V(0, 0, 1), 3), math.radians(150), math.radians(274)), False)
sketch11.addGeometry(Part.LineSegment(V(108.8, -20.7, 0), V(118.3, -4.2, 0)), False)
sketch11.addGeometry(Part.LineSegment(V(133.6, 2.8, 0), V(161.8, 13.1, 0)), False)
sketch11.addGeometry(Part.ArcOfCircle(Part.Circle(V(162.8, 10.2, 0), V(0, 0, 1), 3), math.radians(73), math.radians(110)), False)
sketch11.addGeometry(Part.LineSegment(V(163.7, 13.1, 0), V(196.6, 2.9, 0)), False)
sketch11.addGeometry(Part.ArcOfCircle(Part.Circle(V(195.7, 0, 0), V(0, 0, 1), 3), math.radians(-73), math.radians(73)), False)
sketch11.addGeometry(Part.LineSegment(V(196.6, -2.9, 0), V(163.7, -13.1, 0)), False)
sketch11.addGeometry(Part.ArcOfCircle(Part.Circle(V(162.8, -10.2, 0), V(0, 0, 1), 3), math.radians(-110), math.radians(-73)), False)
sketch11.addGeometry(Part.LineSegment(V(161.8, -13.1, 0), V(133.6, -2.8, 0)), False)
sketch11.addGeometry(Part.ArcOfCircle(Part.Circle(V(134.6, 0, 0), V(0, 0, 1), 3), math.radians(110), math.radians(250)), False)
sketch11.addGeometry(Part.LineSegment(V(183.7, -11.1, 0), V(207, -3.8, 0)), False)
sketch11.addGeometry(Part.LineSegment(V(207, -3.8, 0), V(233.8, -3.8, 0)), False)
sketch11.addGeometry(Part.LineSegment(V(233.8, -3.8, 0), V(186.1, -18.7, 0)), False)
sketch11.addGeometry(Part.ArcOfCircle(Part.Circle(V(184.9, -14.9, 0), V(0, 0, 1), 4), math.radians(107), math.radians(287)), False)
sketch11.addGeometry(Part.LineSegment(V(233.8, 3.8, 0), V(207, 3.8, 0)), False)
sketch11.addGeometry(Part.LineSegment(V(207, 3.8, 0), V(183.7, 11.1, 0)), False)
sketch11.addGeometry(Part.ArcOfCircle(Part.Circle(V(184.9, 14.9, 0), V(0, 0, 1), 4), math.radians(73), math.radians(253)), False)
sketch11.addGeometry(Part.LineSegment(V(186.1, 18.7, 0), V(233.8, 3.8, 0)), False)
sketch11.addConstraint(Sketcher.Constraint("Tangent", 0, 1, 1, 1))
sketch11.addConstraint(Sketcher.Constraint("Tangent", 1, 2, 2, 2))
sketch11.addConstraint(Sketcher.Constraint("Tangent", 2, 1, 3, 1))
sketch11.addConstraint(Sketcher.Constraint("Tangent", 3, 2, 4, 2))
sketch11.addConstraint(Sketcher.Constraint("Tangent", 4, 1, 5, 1))
sketch11.addConstraint(Sketcher.Constraint("Tangent", 5, 2, 6, 2))
sketch11.addConstraint(Sketcher.Constraint("Tangent", 6, 1, 7, 1))
sketch11.addConstraint(Sketcher.Constraint("Tangent", 7, 2, 8, 2))
sketch11.addConstraint(Sketcher.Constraint("Tangent", 8, 1, 9, 1))
sketch11.addConstraint(Sketcher.Constraint("Tangent", 9, 2, 10, 2))
sketch11.addConstraint(Sketcher.Constraint("Tangent", 10, 1, 11, 1))
sketch11.addConstraint(Sketcher.Constraint("Tangent", 11, 2, 0, 2))
sketch11.addConstraint(Sketcher.Constraint("Tangent", 12, 1, 13, 1))
sketch11.addConstraint(Sketcher.Constraint("Tangent", 13, 2, 14, 2))
sketch11.addConstraint(Sketcher.Constraint("Tangent", 14, 1, 15, 1))
sketch11.addConstraint(Sketcher.Constraint("Tangent", 15, 2, 16, 2))
sketch11.addConstraint(Sketcher.Constraint("Tangent", 16, 1, 17, 1))
sketch11.addConstraint(Sketcher.Constraint("Tangent", 17, 2, 18, 2))
sketch11.addConstraint(Sketcher.Constraint("Tangent", 18, 1, 19, 1))
sketch11.addConstraint(Sketcher.Constraint("Tangent", 19, 2, 20, 2))
sketch11.addConstraint(Sketcher.Constraint("Tangent", 20, 1, 21, 1))
sketch11.addConstraint(Sketcher.Constraint("Tangent", 21, 2, 22, 2))
sketch11.addConstraint(Sketcher.Constraint("Tangent", 22, 1, 23, 1))
sketch11.addConstraint(Sketcher.Constraint("Tangent", 23, 2, 12, 2))
sketch11.addConstraint(Sketcher.Constraint("Tangent", 24, 1, 25, 1))
sketch11.addConstraint(Sketcher.Constraint("Tangent", 25, 2, 26, 2))
sketch11.addConstraint(Sketcher.Constraint("Tangent", 26, 1, 27, 1))
sketch11.addConstraint(Sketcher.Constraint("Tangent", 27, 2, 28, 2))
sketch11.addConstraint(Sketcher.Constraint("Tangent", 28, 1, 29, 1))
sketch11.addConstraint(Sketcher.Constraint("Tangent", 29, 2, 30, 2))
sketch11.addConstraint(Sketcher.Constraint("Tangent", 30, 1, 31, 1))
sketch11.addConstraint(Sketcher.Constraint("Tangent", 31, 2, 32, 2))
sketch11.addConstraint(Sketcher.Constraint("Tangent", 32, 1, 33, 1))
sketch11.addConstraint(Sketcher.Constraint("Tangent", 33, 2, 34, 2))
sketch11.addConstraint(Sketcher.Constraint("Tangent", 34, 1, 35, 1))
sketch11.addConstraint(Sketcher.Constraint("Tangent", 35, 2, 24, 2))
sketch11.addConstraint(Sketcher.Constraint("Tangent", 36, 2, 37, 2))
sketch11.addConstraint(Sketcher.Constraint("Tangent", 37, 1, 38, 1))
sketch11.addConstraint(Sketcher.Constraint("Tangent", 38, 2, 39, 2))
sketch11.addConstraint(Sketcher.Constraint("Tangent", 39, 1, 40, 1))
sketch11.addConstraint(Sketcher.Constraint("Tangent", 40, 2, 41, 2))
sketch11.addConstraint(Sketcher.Constraint("Tangent", 41, 1, 36, 1))
sketch11.addConstraint(Sketcher.Constraint("Tangent", 42, 1, 43, 1))
sketch11.addConstraint(Sketcher.Constraint("Tangent", 43, 2, 44, 2))
sketch11.addConstraint(Sketcher.Constraint("Tangent", 44, 1, 45, 1))
sketch11.addConstraint(Sketcher.Constraint("Tangent", 45, 2, 46, 2))
sketch11.addConstraint(Sketcher.Constraint("Tangent", 46, 1, 47, 1))
sketch11.addConstraint(Sketcher.Constraint("Tangent", 47, 2, 42, 2))
sketch11.addConstraint(Sketcher.Constraint("Tangent", 48, 2, 49, 2))
sketch11.addConstraint(Sketcher.Constraint("Tangent", 49, 1, 50, 1))
sketch11.addConstraint(Sketcher.Constraint("Tangent", 50, 2, 51, 2))
sketch11.addConstraint(Sketcher.Constraint("Tangent", 51, 1, 52, 1))
sketch11.addConstraint(Sketcher.Constraint("Tangent", 52, 2, 53, 2))
sketch11.addConstraint(Sketcher.Constraint("Tangent", 53, 1, 54, 1))
sketch11.addConstraint(Sketcher.Constraint("Tangent", 54, 2, 55, 2))
sketch11.addConstraint(Sketcher.Constraint("Tangent", 55, 1, 48, 1))
sketch11.addConstraint(Sketcher.Constraint("Coincident", 56, 2, 57, 1))
sketch11.addConstraint(Sketcher.Constraint("Coincident", 57, 2, 58, 1))
sketch11.addConstraint(Sketcher.Constraint("Tangent", 58, 2, 59, 2))
sketch11.addConstraint(Sketcher.Constraint("Tangent", 59, 1, 56, 1))
sketch11.addConstraint(Sketcher.Constraint("Coincident", 60, 2, 61, 1))
sketch11.addConstraint(Sketcher.Constraint("Tangent", 61, 2, 62, 2))
sketch11.addConstraint(Sketcher.Constraint("Tangent", 62, 1, 63, 1))
sketch11.addConstraint(Sketcher.Constraint("Coincident", 63, 2, 60, 1))
sketch11.addConstraint(Sketcher.Constraint("Horizontal", 27))
sketch11.addConstraint(Sketcher.Constraint("Horizontal", 33))
sketch11.addConstraint(Sketcher.Constraint("Horizontal", 57))
sketch11.addConstraint(Sketcher.Constraint("Horizontal", 60))
sketch11.addConstraint(Sketcher.Constraint("Equal", 0, 2))
sketch11.addConstraint(Sketcher.Constraint("Equal", 2, 4))
sketch11.addConstraint(Sketcher.Constraint("Equal", 4, 6))
sketch11.addConstraint(Sketcher.Constraint("Equal", 6, 8))
sketch11.addConstraint(Sketcher.Constraint("Equal", 8, 10))
sketch11.addConstraint(Sketcher.Constraint("Equal", 10, 12))
sketch11.addConstraint(Sketcher.Constraint("Equal", 12, 14))
sketch11.addConstraint(Sketcher.Constraint("Equal", 14, 16))
sketch11.addConstraint(Sketcher.Constraint("Equal", 16, 18))
sketch11.addConstraint(Sketcher.Constraint("Equal", 18, 20))
sketch11.addConstraint(Sketcher.Constraint("Equal", 20, 22))
sketch11.addConstraint(Sketcher.Constraint("Equal", 22, 24))
sketch11.addConstraint(Sketcher.Constraint("Equal", 24, 26))
sketch11.addConstraint(Sketcher.Constraint("Equal", 26, 28))
sketch11.addConstraint(Sketcher.Constraint("Equal", 28, 30))
sketch11.addConstraint(Sketcher.Constraint("Equal", 30, 32))
sketch11.addConstraint(Sketcher.Constraint("Equal", 32, 34))
sketch11.addConstraint(Sketcher.Constraint("Equal", 34, 37))
sketch11.addConstraint(Sketcher.Constraint("Equal", 37, 39))
sketch11.addConstraint(Sketcher.Constraint("Equal", 39, 41))
sketch11.addConstraint(Sketcher.Constraint("Equal", 41, 42))
sketch11.addConstraint(Sketcher.Constraint("Equal", 42, 44))
sketch11.addConstraint(Sketcher.Constraint("Equal", 44, 46))
sketch11.addConstraint(Sketcher.Constraint("Equal", 46, 49))
sketch11.addConstraint(Sketcher.Constraint("Equal", 49, 51))
sketch11.addConstraint(Sketcher.Constraint("Equal", 51, 53))
sketch11.addConstraint(Sketcher.Constraint("Equal", 53, 55))
sketch11.addConstraint(Sketcher.Constraint("Equal", 59, 62))
sketch11.addConstraint(Sketcher.Constraint("Symmetric", 0, 3, 12, 3, -1))
sketch11.addConstraint(Sketcher.Constraint("Symmetric", 10, 3, 14, 3, -1))
sketch11.addConstraint(Sketcher.Constraint("Symmetric", 8, 3, 16, 3, -1))
sketch11.addConstraint(Sketcher.Constraint("Symmetric", 6, 3, 18, 3, -1))
sketch11.addConstraint(Sketcher.Constraint("Symmetric", 4, 3, 20, 3, -1))
sketch11.addConstraint(Sketcher.Constraint("Symmetric", 2, 3, 22, 3, -1))
sketch11.addConstraint(Sketcher.Constraint("Symmetric", 28, 3, 32, 3, -1))
sketch11.addConstraint(Sketcher.Constraint("Symmetric", 39, 3, 42, 3, -1))
sketch11.addConstraint(Sketcher.Constraint("Symmetric", 37, 3, 44, 3, -1))
sketch11.addConstraint(Sketcher.Constraint("Symmetric", 41, 3, 46, 3, -1))
sketch11.addConstraint(Sketcher.Constraint("Symmetric", 49, 3, 53, 3, -1))
sketch11.addConstraint(Sketcher.Constraint("Symmetric", 59, 3, 62, 3, -1))
sketch11.addConstraint(Sketcher.Constraint("Symmetric", 25, 2, 34, 1, -1))
sketch11.addConstraint(Sketcher.Constraint("Symmetric", 56, 2, 60, 2, -1))
sketch11.addConstraint(Sketcher.Constraint("PointOnObject", 30, 3, -1))
sketch11.addConstraint(Sketcher.Constraint("PointOnObject", 51, 3, -1))
sketch11.addConstraint(Sketcher.Constraint("PointOnObject", 55, 3, -1))
sketch11.addConstraint(Sketcher.Constraint("Parallel", 1, 7))
sketch11.addConstraint(Sketcher.Constraint("Parallel", 3, 9))
sketch11.addConstraint(Sketcher.Constraint("Parallel", 5, 11))
sketch11.addConstraint(Sketcher.Constraint("Parallel", 25, 31))
sketch11.addConstraint(Sketcher.Constraint("Parallel", 9, 36))
sketch11.addConstraint(Sketcher.Constraint("Parallel", 35, 40))
sketch11.addConstraint(Sketcher.Constraint("Parallel", 38, 48))
sketch11.addConstraint(Sketcher.Constraint("Parallel", 52, 56))
sketch11.addConstraint(Sketcher.Constraint("Parallel", 56, 58))
sketch11.addConstraint(Sketcher.Constraint("Parallel", 61, 63))
sketch11.addConstraint(Sketcher.Constraint("Equal", 1, 3))
sketch11.addConstraint(Sketcher.Constraint("Equal", 3, 5))
sketch11.addConstraint(Sketcher.Constraint("Equal", 5, 7))
sketch11.addConstraint(Sketcher.Constraint("Radius", 0, 3.0))
sketch11.addConstraint(Sketcher.Constraint("Radius", 59, 4.0))
sketch11.addConstraint(Sketcher.Constraint("Angle", 1, Q("56 deg")))
sketch11.addConstraint(Sketcher.Constraint("Angle", 3, Q("-4 deg")))
sketch11.addConstraint(Sketcher.Constraint("Angle", 5, Q("-64 deg")))
sketch11.addConstraint(Sketcher.Constraint("Angle", 25, Q("60 deg")))
sketch11.addConstraint(Sketcher.Constraint("Distance", 58, 50.0))
sketch11.addConstraint(Sketcher.Constraint("DistanceY", -1, 1, 26, 3, 17.0))
sketch11.addConstraint(Sketcher.Constraint("DistanceX", 27, 1, 27, 2, 19.629909))
sketch11.addConstraint(Sketcher.Constraint("DistanceX", -1, 1, 55, 3, 134.579502))
sketch11.addConstraint(Sketcher.Constraint("Distance", 36, 46.361051))
sketch11.addConstraint(Sketcher.Constraint("Distance", 38, 39.036718))
sketch11.addConstraint(Sketcher.Constraint("Distance", 48, 30.070329))
sketch11.addConstraint(Sketcher.Constraint("Distance", 50, 34.41563))
sketch11.addConstraint(Sketcher.Constraint("DistanceY", -1, 1, 0, 3, 17.188771))
sketch11.addConstraint(Sketcher.Constraint("DistanceX", -1, 1, 2, 3, 53.19122))
sketch11.addConstraint(Sketcher.Constraint("DistanceX", -1, 1, 8, 3, 62.80878))
sketch11.addConstraint(Sketcher.Constraint("DistanceX", -1, 1, 24, 3, 73.370091))
sketch11.addConstraint(Sketcher.Constraint("DistanceX", -1, 1, 37, 3, 157.598538))
sketch11.addConstraint(Sketcher.Constraint("DistanceY", -1, 1, 41, 3, 22.21614))
sketch11.addConstraint(Sketcher.Constraint("DistanceX", -1, 1, 59, 3, 184.909912))
sketch11.addConstraint(Sketcher.Constraint("DistanceY", 59, 3, -1, 1, 14.889878))
pocket9 = body.newObject("PartDesign::Pocket", "Pocket008")
pocket9.Profile = sketch11
pocket9.Length = 58
pocket9.Reversed = True
doc.recompute()

fillet = body.newObject("PartDesign::Fillet", "Fillet")
fillet.Base = (pocket9, edges_at(pocket9, [(233.833, -3.819, 1.5), (233.833, 3.819, 1.5)]))
fillet.Radius = 2
doc.recompute()

fillet2 = body.newObject("PartDesign::Fillet", "Fillet001")
fillet2.Base = (fillet, edges_at(fillet, [(206.969, -3.819, 1.5), (206.969, 3.819, 1.5)]))
fillet2.Radius = 6

doc.recompute()
